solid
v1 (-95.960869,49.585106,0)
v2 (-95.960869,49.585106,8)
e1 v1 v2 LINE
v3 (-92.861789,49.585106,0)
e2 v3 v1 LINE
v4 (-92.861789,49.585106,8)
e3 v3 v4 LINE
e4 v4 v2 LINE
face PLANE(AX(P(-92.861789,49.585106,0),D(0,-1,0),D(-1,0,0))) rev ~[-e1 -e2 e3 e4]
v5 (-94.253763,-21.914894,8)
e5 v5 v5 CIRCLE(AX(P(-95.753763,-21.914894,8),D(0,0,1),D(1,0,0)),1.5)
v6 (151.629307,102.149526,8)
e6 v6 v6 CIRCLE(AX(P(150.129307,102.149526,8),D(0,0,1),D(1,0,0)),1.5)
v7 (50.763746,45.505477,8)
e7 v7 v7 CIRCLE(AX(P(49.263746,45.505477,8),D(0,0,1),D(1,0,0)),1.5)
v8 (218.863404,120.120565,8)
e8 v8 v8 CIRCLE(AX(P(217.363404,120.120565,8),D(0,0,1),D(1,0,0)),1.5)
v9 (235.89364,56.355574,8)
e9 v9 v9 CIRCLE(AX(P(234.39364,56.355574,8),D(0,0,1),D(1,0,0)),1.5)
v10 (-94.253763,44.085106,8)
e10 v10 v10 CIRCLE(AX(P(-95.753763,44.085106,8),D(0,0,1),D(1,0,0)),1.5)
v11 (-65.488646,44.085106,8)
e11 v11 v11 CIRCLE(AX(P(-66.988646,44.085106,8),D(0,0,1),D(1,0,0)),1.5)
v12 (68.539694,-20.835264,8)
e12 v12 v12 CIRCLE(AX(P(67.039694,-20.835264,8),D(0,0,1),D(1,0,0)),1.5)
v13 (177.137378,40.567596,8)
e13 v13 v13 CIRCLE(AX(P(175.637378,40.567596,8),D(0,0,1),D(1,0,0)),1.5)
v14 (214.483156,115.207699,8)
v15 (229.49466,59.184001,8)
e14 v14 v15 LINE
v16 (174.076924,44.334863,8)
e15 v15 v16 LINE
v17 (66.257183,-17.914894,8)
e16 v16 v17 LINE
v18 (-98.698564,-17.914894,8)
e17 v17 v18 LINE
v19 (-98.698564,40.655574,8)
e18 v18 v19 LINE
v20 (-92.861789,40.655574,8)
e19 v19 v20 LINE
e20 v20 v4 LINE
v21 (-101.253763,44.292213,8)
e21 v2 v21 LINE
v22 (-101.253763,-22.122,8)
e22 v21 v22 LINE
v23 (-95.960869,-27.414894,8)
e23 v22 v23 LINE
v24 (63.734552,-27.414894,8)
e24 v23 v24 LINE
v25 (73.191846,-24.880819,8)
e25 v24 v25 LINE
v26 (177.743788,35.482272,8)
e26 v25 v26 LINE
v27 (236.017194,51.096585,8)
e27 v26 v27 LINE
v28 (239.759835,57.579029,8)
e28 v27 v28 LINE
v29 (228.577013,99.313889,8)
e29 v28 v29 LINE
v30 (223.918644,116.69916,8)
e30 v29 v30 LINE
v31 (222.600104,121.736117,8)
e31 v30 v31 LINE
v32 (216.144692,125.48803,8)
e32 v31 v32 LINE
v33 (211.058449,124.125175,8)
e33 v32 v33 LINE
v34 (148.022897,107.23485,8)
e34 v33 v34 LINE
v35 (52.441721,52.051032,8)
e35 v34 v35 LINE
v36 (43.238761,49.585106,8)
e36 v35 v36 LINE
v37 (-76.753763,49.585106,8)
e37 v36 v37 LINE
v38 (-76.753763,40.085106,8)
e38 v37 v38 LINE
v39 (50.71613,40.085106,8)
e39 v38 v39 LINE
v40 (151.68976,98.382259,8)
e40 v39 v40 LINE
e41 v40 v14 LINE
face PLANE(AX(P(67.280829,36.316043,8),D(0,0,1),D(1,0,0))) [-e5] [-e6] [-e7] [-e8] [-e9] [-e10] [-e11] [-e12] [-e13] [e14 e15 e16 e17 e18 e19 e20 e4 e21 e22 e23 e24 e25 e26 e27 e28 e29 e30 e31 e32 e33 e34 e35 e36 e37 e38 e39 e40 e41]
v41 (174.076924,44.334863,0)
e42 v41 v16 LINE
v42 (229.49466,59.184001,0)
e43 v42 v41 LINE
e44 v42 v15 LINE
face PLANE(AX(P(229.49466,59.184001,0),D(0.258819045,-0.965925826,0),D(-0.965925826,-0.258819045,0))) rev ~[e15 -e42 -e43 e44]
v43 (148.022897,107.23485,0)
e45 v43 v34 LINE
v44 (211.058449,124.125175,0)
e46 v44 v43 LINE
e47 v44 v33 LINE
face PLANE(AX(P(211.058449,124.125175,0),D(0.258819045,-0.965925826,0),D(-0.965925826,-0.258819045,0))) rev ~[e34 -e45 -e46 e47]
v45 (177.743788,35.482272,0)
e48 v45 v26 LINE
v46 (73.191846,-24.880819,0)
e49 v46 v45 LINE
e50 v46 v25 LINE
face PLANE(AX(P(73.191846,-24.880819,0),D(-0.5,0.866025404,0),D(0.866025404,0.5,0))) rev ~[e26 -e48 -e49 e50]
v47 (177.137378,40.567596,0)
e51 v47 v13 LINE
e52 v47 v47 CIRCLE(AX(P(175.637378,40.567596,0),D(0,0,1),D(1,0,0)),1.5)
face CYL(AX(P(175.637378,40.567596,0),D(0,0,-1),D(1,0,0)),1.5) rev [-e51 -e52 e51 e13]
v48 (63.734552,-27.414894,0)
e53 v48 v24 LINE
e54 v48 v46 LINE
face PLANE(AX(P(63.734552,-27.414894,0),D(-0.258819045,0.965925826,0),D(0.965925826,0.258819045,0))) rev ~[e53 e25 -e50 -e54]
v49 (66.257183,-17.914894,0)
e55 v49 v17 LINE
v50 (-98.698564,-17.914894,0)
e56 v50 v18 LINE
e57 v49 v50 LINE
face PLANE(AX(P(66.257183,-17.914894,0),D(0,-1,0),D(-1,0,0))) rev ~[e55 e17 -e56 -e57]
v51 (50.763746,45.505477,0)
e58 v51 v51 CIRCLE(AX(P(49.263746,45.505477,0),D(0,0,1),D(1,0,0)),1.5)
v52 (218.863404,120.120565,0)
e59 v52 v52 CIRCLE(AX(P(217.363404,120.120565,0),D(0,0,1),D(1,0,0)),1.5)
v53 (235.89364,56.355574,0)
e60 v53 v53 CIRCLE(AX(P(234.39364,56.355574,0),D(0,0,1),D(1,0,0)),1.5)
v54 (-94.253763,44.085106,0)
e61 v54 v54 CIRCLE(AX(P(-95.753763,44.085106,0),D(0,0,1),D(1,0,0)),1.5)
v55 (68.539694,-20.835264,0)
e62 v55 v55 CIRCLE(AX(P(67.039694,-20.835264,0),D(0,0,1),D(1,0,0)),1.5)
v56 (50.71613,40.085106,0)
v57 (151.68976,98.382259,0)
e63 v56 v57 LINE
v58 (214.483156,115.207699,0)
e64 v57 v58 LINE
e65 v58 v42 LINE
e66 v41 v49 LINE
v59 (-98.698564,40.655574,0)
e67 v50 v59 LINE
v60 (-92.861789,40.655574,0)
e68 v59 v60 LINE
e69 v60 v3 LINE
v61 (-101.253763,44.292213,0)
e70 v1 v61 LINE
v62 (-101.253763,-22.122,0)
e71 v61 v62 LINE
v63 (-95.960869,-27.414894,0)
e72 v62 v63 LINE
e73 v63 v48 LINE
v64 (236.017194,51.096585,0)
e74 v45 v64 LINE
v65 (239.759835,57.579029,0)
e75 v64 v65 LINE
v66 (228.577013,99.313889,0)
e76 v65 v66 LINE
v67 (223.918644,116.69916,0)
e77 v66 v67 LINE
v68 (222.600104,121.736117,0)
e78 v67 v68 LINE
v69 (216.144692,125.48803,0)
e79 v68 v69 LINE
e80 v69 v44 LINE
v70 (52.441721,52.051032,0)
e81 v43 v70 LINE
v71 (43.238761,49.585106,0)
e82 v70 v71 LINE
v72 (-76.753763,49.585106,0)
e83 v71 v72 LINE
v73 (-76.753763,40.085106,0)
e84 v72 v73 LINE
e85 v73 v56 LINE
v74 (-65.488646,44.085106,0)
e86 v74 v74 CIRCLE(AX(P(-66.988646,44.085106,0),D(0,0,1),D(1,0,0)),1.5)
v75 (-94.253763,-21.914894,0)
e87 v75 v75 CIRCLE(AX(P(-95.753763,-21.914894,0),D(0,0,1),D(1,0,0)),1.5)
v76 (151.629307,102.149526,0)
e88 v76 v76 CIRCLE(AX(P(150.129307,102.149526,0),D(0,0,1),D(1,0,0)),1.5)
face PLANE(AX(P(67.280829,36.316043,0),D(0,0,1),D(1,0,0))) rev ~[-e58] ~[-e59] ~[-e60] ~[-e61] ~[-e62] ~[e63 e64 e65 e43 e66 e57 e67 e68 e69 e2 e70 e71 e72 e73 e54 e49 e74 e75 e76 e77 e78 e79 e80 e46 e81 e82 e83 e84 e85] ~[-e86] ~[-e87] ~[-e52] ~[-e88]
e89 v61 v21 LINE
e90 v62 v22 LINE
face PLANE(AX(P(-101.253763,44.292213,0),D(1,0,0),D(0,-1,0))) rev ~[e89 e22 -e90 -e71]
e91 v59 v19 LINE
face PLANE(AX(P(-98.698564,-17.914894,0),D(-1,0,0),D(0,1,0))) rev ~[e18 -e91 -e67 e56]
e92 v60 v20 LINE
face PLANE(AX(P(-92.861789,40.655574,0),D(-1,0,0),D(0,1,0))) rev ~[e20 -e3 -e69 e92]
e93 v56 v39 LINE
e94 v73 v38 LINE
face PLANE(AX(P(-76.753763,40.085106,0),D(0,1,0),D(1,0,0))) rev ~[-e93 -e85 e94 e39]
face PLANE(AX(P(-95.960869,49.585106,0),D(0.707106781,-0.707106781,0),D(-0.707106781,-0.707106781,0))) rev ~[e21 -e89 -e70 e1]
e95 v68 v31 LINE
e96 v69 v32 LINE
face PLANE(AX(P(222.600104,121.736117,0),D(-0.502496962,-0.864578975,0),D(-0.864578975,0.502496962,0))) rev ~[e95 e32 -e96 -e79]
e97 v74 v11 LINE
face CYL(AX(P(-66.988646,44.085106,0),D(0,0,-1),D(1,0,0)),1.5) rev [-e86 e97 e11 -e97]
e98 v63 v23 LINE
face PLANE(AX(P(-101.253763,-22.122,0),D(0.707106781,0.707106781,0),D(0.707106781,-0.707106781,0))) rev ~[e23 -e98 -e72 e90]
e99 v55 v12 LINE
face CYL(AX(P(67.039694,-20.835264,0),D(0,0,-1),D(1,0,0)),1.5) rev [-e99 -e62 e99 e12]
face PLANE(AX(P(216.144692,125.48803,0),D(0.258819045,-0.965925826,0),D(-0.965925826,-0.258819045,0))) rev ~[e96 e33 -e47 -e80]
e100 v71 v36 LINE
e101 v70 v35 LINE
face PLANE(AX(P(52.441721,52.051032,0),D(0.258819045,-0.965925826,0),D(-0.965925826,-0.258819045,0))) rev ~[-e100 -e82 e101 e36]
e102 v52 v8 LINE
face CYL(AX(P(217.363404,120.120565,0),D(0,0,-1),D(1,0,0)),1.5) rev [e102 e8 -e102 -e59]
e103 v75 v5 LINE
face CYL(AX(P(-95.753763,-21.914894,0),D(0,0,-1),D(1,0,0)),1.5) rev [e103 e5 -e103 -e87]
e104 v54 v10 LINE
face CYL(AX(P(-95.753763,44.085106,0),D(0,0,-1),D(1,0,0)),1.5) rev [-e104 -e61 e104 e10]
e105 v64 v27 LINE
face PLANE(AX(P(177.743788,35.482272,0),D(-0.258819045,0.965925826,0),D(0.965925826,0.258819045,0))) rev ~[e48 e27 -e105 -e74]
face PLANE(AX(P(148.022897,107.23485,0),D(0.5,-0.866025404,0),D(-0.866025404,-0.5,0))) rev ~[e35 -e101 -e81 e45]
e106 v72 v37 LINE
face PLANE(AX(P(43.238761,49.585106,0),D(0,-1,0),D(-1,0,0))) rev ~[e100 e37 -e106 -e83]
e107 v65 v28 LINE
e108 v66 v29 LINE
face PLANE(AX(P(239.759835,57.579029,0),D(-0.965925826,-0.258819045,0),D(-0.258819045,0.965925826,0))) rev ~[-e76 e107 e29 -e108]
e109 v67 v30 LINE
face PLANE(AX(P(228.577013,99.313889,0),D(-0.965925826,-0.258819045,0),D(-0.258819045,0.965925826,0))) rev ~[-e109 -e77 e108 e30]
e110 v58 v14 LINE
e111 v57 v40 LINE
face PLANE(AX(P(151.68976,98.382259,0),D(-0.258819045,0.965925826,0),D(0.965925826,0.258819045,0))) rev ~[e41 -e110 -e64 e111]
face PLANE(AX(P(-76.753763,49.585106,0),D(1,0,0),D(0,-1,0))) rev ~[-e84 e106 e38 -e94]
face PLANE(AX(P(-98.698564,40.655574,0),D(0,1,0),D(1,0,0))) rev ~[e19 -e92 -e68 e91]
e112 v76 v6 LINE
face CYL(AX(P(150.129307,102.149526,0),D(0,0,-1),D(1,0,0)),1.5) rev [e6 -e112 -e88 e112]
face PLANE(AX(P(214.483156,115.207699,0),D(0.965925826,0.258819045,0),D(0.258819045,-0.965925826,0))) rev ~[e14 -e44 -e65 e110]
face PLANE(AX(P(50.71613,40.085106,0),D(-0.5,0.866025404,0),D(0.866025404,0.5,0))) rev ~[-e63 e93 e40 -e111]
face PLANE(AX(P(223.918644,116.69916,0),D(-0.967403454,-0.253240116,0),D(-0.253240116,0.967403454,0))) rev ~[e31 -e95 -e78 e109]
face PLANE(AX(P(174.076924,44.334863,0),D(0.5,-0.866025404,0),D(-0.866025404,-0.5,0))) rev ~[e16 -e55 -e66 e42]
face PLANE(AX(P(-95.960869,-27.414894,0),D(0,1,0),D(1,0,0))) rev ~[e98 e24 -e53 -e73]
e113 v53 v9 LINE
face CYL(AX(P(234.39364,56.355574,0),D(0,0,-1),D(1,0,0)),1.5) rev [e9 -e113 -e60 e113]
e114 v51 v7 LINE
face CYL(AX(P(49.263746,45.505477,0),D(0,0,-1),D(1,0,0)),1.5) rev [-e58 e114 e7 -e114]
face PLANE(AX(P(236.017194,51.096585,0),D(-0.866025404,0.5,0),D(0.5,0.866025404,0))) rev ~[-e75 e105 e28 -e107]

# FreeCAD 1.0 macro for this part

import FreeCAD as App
import Part
import Sketcher
from FreeCAD import Vector
Q = App.Units.Quantity

doc = App.newDocument("Part")
params = doc.addObject("Spreadsheet::Sheet", "Params")
for row, (alias, value) in enumerate([
    ("sketch1_diameter", "3 mm"),
    ("sketch1_length", "58 mm"),
    ("sketch1_height", "9.5 mm"),
    ("pad1_length", "8 mm"),
], start=1):
    params.set(f"A{row}", alias)
    params.set(f"B{row}", "=" + value)
    params.setAlias(f"B{row}", alias)

body = doc.addObject("PartDesign::Body", "Body")

# Sketch on XY plane
sketch1 = body.newObject("Sketcher::SketchObject", "Sketch")
sketch1.AttachmentSupport = (doc.getObject("XY_Plane"), [""])
sketch1.MapMode = "FlatFace"
sketch1.addGeometry(Part.LineSegment(Vector(43.238761, 49.585106, 0), Vector(-76.753763, 49.585106, 0)), False)
sketch1.addGeometry(Part.LineSegment(Vector(-76.753763, 49.585106, 0), Vector(-76.753763, 40.085106, 0)), False)
sketch1.addGeometry(Part.LineSegment(Vector(-76.753763, 40.085106, 0), Vector(50.71613, 40.085106, 0)), False)
sketch1.addGeometry(Part.LineSegment(Vector(50.71613, 40.085106, 0), Vector(151.68976, 98.382259, 0)), False)
sketch1.addGeometry(Part.LineSegment(Vector(151.68976, 98.382259, 0), Vector(214.483156, 115.207699, 0)), False)
sketch1.addGeometry(Part.LineSegment(Vector(214.483156, 115.207699, 0), Vector(229.49466, 59.184001, 0)), False)
sketch1.addGeometry(Part.LineSegment(Vector(229.49466, 59.184001, 0), Vector(174.076924, 44.334863, 0)), False)
sketch1.addGeometry(Part.LineSegment(Vector(174.076924, 44.334863, 0), Vector(66.257183, -17.914894, 0)), False)
sketch1.addGeometry(Part.LineSegment(Vector(66.257183, -17.914894, 0), Vector(-98.698564, -17.914894, 0)), False)
sketch1.addGeometry(Part.LineSegment(Vector(-98.698564, -17.914894, 0), Vector(-98.698564, 40.655574, 0)), False)
sketch1.addGeometry(Part.LineSegment(Vector(-98.698564, 40.655574, 0), Vector(-92.861789, 40.655574, 0)), False)
sketch1.addGeometry(Part.LineSegment(Vector(-92.861789, 40.655574, 0), Vector(-92.861789, 49.585106, 0)), False)
sketch1.addGeometry(Part.LineSegment(Vector(-92.861789, 49.585106, 0), Vector(-95.960869, 49.585106, 0)), False)
sketch1.addGeometry(Part.LineSegment(Vector(-95.960869, 49.585106, 0), Vector(-101.253763, 44.292213, 0)), False)
sketch1.addGeometry(Part.LineSegment(Vector(-101.253763, 44.292213, 0), Vector(-101.253763, -22.122, 0)), False)
sketch1.addGeometry(Part.LineSegment(Vector(-101.253763, -22.122, 0), Vector(-95.960869, -27.414894, 0)), False)
sketch1.addGeometry(Part.LineSegment(Vector(-95.960869, -27.414894, 0), Vector(63.734552, -27.414894, 0)), False)
sketch1.addGeometry(Part.LineSegment(Vector(63.734552, -27.414894, 0), Vector(73.191846, -24.880819, 0)), False)
sketch1.addGeometry(Part.LineSegment(Vector(73.191846, -24.880819, 0), Vector(177.743788, 35.482272, 0)), False)
sketch1.addGeometry(Part.LineSegment(Vector(177.743788, 35.482272, 0), Vector(236.017194, 51.096585, 0)), False)
sketch1.addGeometry(Part.LineSegment(Vector(236.017194, 51.096585, 0), Vector(239.759835, 57.579029, 0)), False)
sketch1.addGeometry(Part.LineSegment(Vector(239.759835, 57.579029, 0), Vector(228.577013, 99.313889, 0)), False)
sketch1.addGeometry(Part.LineSegment(Vector(228.577013, 99.313889, 0), Vector(223.918644, 116.69916, 0)), False)
sketch1.addGeometry(Part.LineSegment(Vector(223.918644, 116.69916, 0), Vector(222.600104, 121.736117, 0)), False)
sketch1.addGeometry(Part.LineSegment(Vector(222.600104, 121.736117, 0), Vector(216.144692, 125.48803, 0)), False)
sketch1.addGeometry(Part.LineSegment(Vector(216.144692, 125.48803, 0), Vector(211.058449, 124.125175, 0)), False)
sketch1.addGeometry(Part.LineSegment(Vector(211.058449, 124.125175, 0), Vector(148.022897, 107.23485, 0)), False)
sketch1.addGeometry(Part.LineSegment(Vector(148.022897, 107.23485, 0), Vector(52.441721, 52.051032, 0)), False)
sketch1.addGeometry(Part.LineSegment(Vector(52.441721, 52.051032, 0), Vector(43.238761, 49.585106, 0)), False)
sketch1.addGeometry(Part.Circle(Vector(-95.753763, -21.914894, 0), Vector(0, 0, 1), 1.5), False)
sketch1.addGeometry(Part.Circle(Vector(67.039694, -20.835264, 0), Vector(0, 0, 1), 1.5), False)
sketch1.addGeometry(Part.Circle(Vector(-95.753763, 44.085106, 0), Vector(0, 0, 1), 1.5), False)
sketch1.addGeometry(Part.Circle(Vector(-66.988646, 44.085106, 0), Vector(0, 0, 1), 1.5), False)
sketch1.addGeometry(Part.Circle(Vector(49.263746, 45.505477, 0), Vector(0, 0, 1), 1.5), False)
sketch1.addGeometry(Part.Circle(Vector(175.637378, 40.567596, 0), Vector(0, 0, 1), 1.5), False)
sketch1.addGeometry(Part.Circle(Vector(234.39364, 56.355574, 0), Vector(0, 0, 1), 1.5), False)
sketch1.addGeometry(Part.Circle(Vector(150.129307, 102.149526, 0), Vector(0, 0, 1), 1.5), False)
sketch1.addGeometry(Part.Circle(Vector(217.363404, 120.120565, 0), Vector(0, 0, 1), 1.5), False)
sketch1.addConstraint(Sketcher.Constraint("Coincident", 0, 2, 1, 1))
sketch1.addConstraint(Sketcher.Constraint("Coincident", 1, 2, 2, 1))
sketch1.addConstraint(Sketcher.Constraint("Coincident", 2, 2, 3, 1))
sketch1.addConstraint(Sketcher.Constraint("Coincident", 3, 2, 4, 1))
sketch1.addConstraint(Sketcher.Constraint("Coincident", 4, 2, 5, 1))
sketch1.addConstraint(Sketcher.Constraint("Coincident", 5, 2, 6, 1))
sketch1.addConstraint(Sketcher.Constraint("Coincident", 6, 2, 7, 1))
sketch1.addConstraint(Sketcher.Constraint("Coincident", 7, 2, 8, 1))
sketch1.addConstraint(Sketcher.Constraint("Coincident", 8, 2, 9, 1))
sketch1.addConstraint(Sketcher.Constraint("Coincident", 9, 2, 10, 1))
sketch1.addConstraint(Sketcher.Constraint("Coincident", 10, 2, 11, 1))
sketch1.addConstraint(Sketcher.Constraint("Coincident", 11, 2, 12, 1))
sketch1.addConstraint(Sketcher.Constraint("Coincident", 12, 2, 13, 1))
sketch1.addConstraint(Sketcher.Constraint("Coincident", 13, 2, 14, 1))
sketch1.addConstraint(Sketcher.Constraint("Coincident", 14, 2, 15, 1))
sketch1.addConstraint(Sketcher.Constraint("Coincident", 15, 2, 16, 1))
sketch1.addConstraint(Sketcher.Constraint("Coincident", 16, 2, 17, 1))
sketch1.addConstraint(Sketcher.Constraint("Coincident", 17, 2, 18, 1))
sketch1.addConstraint(Sketcher.Constraint("Coincident", 18, 2, 19, 1))
sketch1.addConstraint(Sketcher.Constraint("Coincident", 19, 2, 20, 1))
sketch1.addConstraint(Sketcher.Constraint("Coincident", 20, 2, 21, 1))
sketch1.addConstraint(Sketcher.Constraint("Coincident", 21, 2, 22, 1))
sketch1.addConstraint(Sketcher.Constraint("Coincident", 22, 2, 23, 1))
sketch1.addConstraint(Sketcher.Constraint("Coincident", 23, 2, 24, 1))
sketch1.addConstraint(Sketcher.Constraint("Coincident", 24, 2, 25, 1))
sketch1.addConstraint(Sketcher.Constraint("Coincident", 25, 2, 26, 1))
sketch1.addConstraint(Sketcher.Constraint("Coincident", 26, 2, 27, 1))
sketch1.addConstraint(Sketcher.Constraint("Coincident", 27, 2, 28, 1))
sketch1.addConstraint(Sketcher.Constraint("Coincident", 28, 2, 0, 1))
sketch1.addConstraint(Sketcher.Constraint("Horizontal", 0))
sketch1.addConstraint(Sketcher.Constraint("Vertical", 1))
sketch1.addConstraint(Sketcher.Constraint("Horizontal", 2))
sketch1.addConstraint(Sketcher.Constraint("Horizontal", 8))
sketch1.addConstraint(Sketcher.Constraint("Vertical", 9))
sketch1.addConstraint(Sketcher.Constraint("Horizontal", 10))
sketch1.addConstraint(Sketcher.Constraint("Vertical", 11))
sketch1.addConstraint(Sketcher.Constraint("Horizontal", 12))
sketch1.addConstraint(Sketcher.Constraint("Vertical", 14))
sketch1.addConstraint(Sketcher.Constraint("Horizontal", 16))
sketch1.addConstraint(Sketcher.Constraint("Equal", 29, 30))
sketch1.addConstraint(Sketcher.Constraint("Equal", 30, 31))
sketch1.addConstraint(Sketcher.Constraint("Equal", 31, 32))
sketch1.addConstraint(Sketcher.Constraint("Equal", 32, 33))
sketch1.addConstraint(Sketcher.Constraint("Equal", 33, 34))
sketch1.addConstraint(Sketcher.Constraint("Equal", 34, 35))
sketch1.addConstraint(Sketcher.Constraint("Equal", 35, 36))
sketch1.addConstraint(Sketcher.Constraint("Equal", 36, 37))
sketch1.addConstraint(Sketcher.Constraint("Perpendicular", 4, 5))
sketch1.addConstraint(Sketcher.Constraint("Perpendicular", 5, 6))
sketch1.addConstraint(Sketcher.Constraint("Parallel", 3, 7))
sketch1.addConstraint(Sketcher.Constraint("Perpendicular", 13, 15))
sketch1.addConstraint(Sketcher.Constraint("Parallel", 6, 17))
sketch1.addConstraint(Sketcher.Constraint("Parallel", 7, 18))
sketch1.addConstraint(Sketcher.Constraint("Parallel", 17, 19))
sketch1.addConstraint(Sketcher.Constraint("Perpendicular", 19, 21))
sketch1.addConstraint(Sketcher.Constraint("Parallel", 21, 22))
sketch1.addConstraint(Sketcher.Constraint("Perpendicular", 22, 25))
sketch1.addConstraint(Sketcher.Constraint("Parallel", 25, 26))
sketch1.addConstraint(Sketcher.Constraint("Parallel", 18, 27))
sketch1.addConstraint(Sketcher.Constraint("Parallel", 26, 28))
sketch1.addConstraint(Sketcher.Constraint("Horizontal", 31, 3, 32, 3))
sketch1.addConstraint(Sketcher.Constraint("Horizontal", 0, 2, 11, 2))
sketch1.addConstraint(Sketcher.Constraint("Vertical", 29, 3, 31, 3))
sketch1.addConstraint(Sketcher.Constraint("Vertical", 12, 2, 15, 2))
sketch1.addConstraint(Sketcher.Constraint("Equal", 13, 15))
sketch1.addConstraint(Sketcher.Constraint("Equal", 15, 20))
sketch1.addConstraint(Sketcher.Constraint("Diameter", 29, Q("3 mm")))
sketch1.addConstraint(Sketcher.Constraint("Angle", 3, Q("30 deg")))
sketch1.addConstraint(Sketcher.Constraint("Angle", 4, Q("15 deg")))
sketch1.addConstraint(Sketcher.Constraint("Angle", 20, Q("60 deg")))
sketch1.addConstraint(Sketcher.Constraint("Distance", 5, Q("58 mm")))
sketch1.addConstraint(Sketcher.Constraint("DistanceY", 1, 2, 1, 1, Q("9.5 mm")))
sketch1.addConstraint(Sketcher.Constraint("DistanceY", 29, 3, 31, 3, Q("66 mm")))
sketch1.addConstraint(Sketcher.Constraint("DistanceX", 31, 3, 0, 2, Q("19 mm")))
sketch1.addConstraint(Sketcher.Constraint("DistanceY", 1, 2, 32, 3, Q("4 mm")))
sketch1.addConstraint(Sketcher.Constraint("DistanceY", 7, 2, 2, 2, Q("58 mm")))
sketch1.addConstraint(Sketcher.Constraint("DistanceX", 13, 2, 31, 3, Q("5.5 mm")))
sketch1.addConstraint(Sketcher.Constraint("DistanceY", 15, 2, 29, 3, Q("5.5 mm")))
sketch1.addConstraint(Sketcher.Constraint("DistanceY", -1, 1, 5, 2, Q("59.184001 mm")))
sketch1.addConstraint(Sketcher.Constraint("DistanceY", 14, 2, -1, 1, Q("22.122 mm")))
sketch1.addConstraint(Sketcher.Constraint("DistanceX", 12, 2, 12, 1, Q("3.09908 mm")))
sketch1.addConstraint(Sketcher.Constraint("DistanceX", 16, 1, 16, 2, Q("159.695421 mm")))
sketch1.addConstraint(Sketcher.Constraint("DistanceX", 3, 2, 5, 2, Q("77.8049 mm")))
sketch1.addConstraint(Sketcher.Constraint("DistanceX", 8, 2, 29, 3, Q("2.944802 mm")))
sketch1.addConstraint(Sketcher.Constraint("DistanceX", 33, 3, 17, 2, Q("23.9281 mm")))
sketch1.addConstraint(Sketcher.Constraint("DistanceY", 18, 2, 35, 3, Q("20.873301 mm")))
sketch1.addConstraint(Sketcher.Constraint("DistanceX", 37, 3, 23, 2, Q("5.236701 mm")))
sketch1.addConstraint(Sketcher.Constraint("Distance", 6, Q("57.372662 mm")))
sketch1.addConstraint(Sketcher.Constraint("Distance", 13, Q("7.485281 mm")))
sketch1.addConstraint(Sketcher.Constraint("Distance", 17, Q("9.790911 mm")))
sketch1.addConstraint(Sketcher.Constraint("Distance", 19, Q("60.32907 mm")))
sketch1.addConstraint(Sketcher.Constraint("Distance", 24, Q("7.466539 mm")))
sketch1.addConstraint(Sketcher.Constraint("DistanceX", 0, 2, 0, 1, Q("119.992524 mm")))
sketch1.addConstraint(Sketcher.Constraint("DistanceX", 2, 1, 2, 2, Q("127.469893 mm")))
sketch1.addConstraint(Sketcher.Constraint("DistanceY", 9, 1, 9, 2, Q("58.570467 mm")))
sketch1.addConstraint(Sketcher.Constraint("DistanceX", -1, 1, 35, 3, Q("234.39364 mm")))
sketch1.addConstraint(Sketcher.Constraint("DistanceX", -1, 1, 2, 2, Q("50.71613 mm")))
sketch1.addConstraint(Sketcher.Constraint("DistanceY", -1, 1, 20, 2, Q("57.579029 mm")))
sketch1.addConstraint(Sketcher.Constraint("DistanceY", -1, 1, 21, 2, Q("99.313889 mm")))
sketch1.addConstraint(Sketcher.Constraint("DistanceY", -1, 1, 22, 2, Q("116.69916 mm")))
sketch1.addConstraint(Sketcher.Constraint("DistanceX", -1, 1, 24, 2, Q("216.144692 mm")))
sketch1.addConstraint(Sketcher.Constraint("DistanceY", -1, 1, 24, 2, Q("125.48803 mm")))
sketch1.addConstraint(Sketcher.Constraint("DistanceX", -1, 1, 25, 2, Q("211.058449 mm")))
sketch1.addConstraint(Sketcher.Constraint("DistanceY", -1, 1, 26, 2, Q("107.23485 mm")))
sketch1.addConstraint(Sketcher.Constraint("DistanceY", 29, 3, 30, 3, Q("1.079629 mm")))
sketch1.addConstraint(Sketcher.Constraint("DistanceX", 32, 3, 30, 3, Q("134.02834 mm")))
sketch1.addConstraint(Sketcher.Constraint("DistanceX", 33, 3, 30, 3, Q("17.775948 mm")))
sketch1.addConstraint(Sketcher.Constraint("DistanceY", 30, 3, 33, 3, Q("66.340742 mm")))
sketch1.addConstraint(Sketcher.Constraint("DistanceY", 30, 3, 34, 3, Q("61.40286 mm")))
sketch1.addConstraint(Sketcher.Constraint("DistanceX", 33, 3, 34, 3, Q("126.373632 mm")))
sketch1.addConstraint(Sketcher.Constraint("DistanceX", 36, 3, 34, 3, Q("25.508071 mm")))
sketch1.addConstraint(Sketcher.Constraint("DistanceY", 34, 3, 36, 3, Q("61.58193 mm")))
sketch1.addConstraint(Sketcher.Constraint("DistanceY", 35, 3, 37, 3, Q("63.764992 mm")))
sketch1.addConstraint(Sketcher.Constraint("DistanceX", 30, 3, 37, 3, Q("150.32371 mm")))
sketch1.setExpression("Constraints[66]", "Params.sketch1_diameter")
sketch1.setExpression("Constraints[70]", "Params.sketch1_length")
sketch1.setExpression("Constraints[71]", "Params.sketch1_height")
pad1 = body.newObject("PartDesign::Pad", "Pad")
pad1.Profile = sketch1
pad1.setExpression("Length", "Params.pad1_length")

doc.recompute()
